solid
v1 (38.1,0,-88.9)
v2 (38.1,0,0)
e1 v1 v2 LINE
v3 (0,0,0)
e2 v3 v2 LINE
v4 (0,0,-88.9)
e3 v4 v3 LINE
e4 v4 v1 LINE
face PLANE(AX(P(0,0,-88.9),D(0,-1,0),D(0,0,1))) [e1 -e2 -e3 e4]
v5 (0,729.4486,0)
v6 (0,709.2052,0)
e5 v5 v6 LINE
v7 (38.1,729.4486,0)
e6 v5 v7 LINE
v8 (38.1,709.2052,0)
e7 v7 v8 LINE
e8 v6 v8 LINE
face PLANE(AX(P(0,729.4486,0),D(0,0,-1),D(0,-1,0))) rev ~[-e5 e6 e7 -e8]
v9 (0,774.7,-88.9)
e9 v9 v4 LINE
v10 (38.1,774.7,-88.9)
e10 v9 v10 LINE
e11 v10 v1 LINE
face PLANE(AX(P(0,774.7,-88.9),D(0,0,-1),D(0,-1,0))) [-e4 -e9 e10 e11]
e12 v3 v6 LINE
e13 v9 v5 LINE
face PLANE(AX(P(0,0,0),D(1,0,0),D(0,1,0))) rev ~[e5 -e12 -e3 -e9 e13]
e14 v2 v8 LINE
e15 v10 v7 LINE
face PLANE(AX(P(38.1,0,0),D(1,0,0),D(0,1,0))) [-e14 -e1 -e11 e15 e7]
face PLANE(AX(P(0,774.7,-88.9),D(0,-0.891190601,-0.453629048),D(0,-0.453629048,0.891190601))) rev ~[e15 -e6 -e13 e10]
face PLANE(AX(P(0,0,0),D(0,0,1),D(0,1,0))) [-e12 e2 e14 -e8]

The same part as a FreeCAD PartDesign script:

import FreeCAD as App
import Part
import Sketcher

V = App.Vector
Q = App.Units.Quantity

doc = App.newDocument("Part")
params = doc.addObject("Spreadsheet::Sheet", "Params")
for row, (alias, value) in enumerate([
    ("sketch1_width", "30.5 in"),
    ("sketch1_height", "3.5 in"),
    ("pad1_length", "1.5 in"),
], start=1):
    params.set(f"A{row}", alias)
    params.set(f"B{row}", "=" + value)
    params.setAlias(f"B{row}", alias)

body = doc.addObject("PartDesign::Body", "Body")

sketch1 = body.newObject("Sketcher::SketchObject", "Sketch")
sketch1.AttachmentSupport = (doc.getObject("YZ_Plane"), [""])
sketch1.MapMode = "FlatFace"
sketch1.addGeometry([
    Part.LineSegment(V(729.4486, 0, 0), V(0, 0, 0)),
    Part.LineSegment(V(0, 0, 0), V(0, -88.9, 0)),
    Part.LineSegment(V(0, -88.9, 0), V(774.7, -88.9, 0)),
    Part.LineSegment(V(774.7, -88.9, 0), V(729.4486, 0, 0)),
], False)
sketch1.addConstraint([
    Sketcher.Constraint("Coincident", 0, 2, 1, 1),
    Sketcher.Constraint("Coincident", 1, 2, 2, 1),
    Sketcher.Constraint("Coincident", 2, 2, 3, 1),
    Sketcher.Constraint("Coincident", 3, 2, 0, 1),
    Sketcher.Constraint("Horizontal", 0),
    Sketcher.Constraint("Vertical", 1),
    Sketcher.Constraint("Horizontal", 2),
    Sketcher.Constraint("Coincident", 0, 2, -1, 1),
    Sketcher.Constraint("DistanceX", 2, 1, 2, 2, Q("30.5 in")),
    Sketcher.Constraint("DistanceY", 1, 2, 1, 1, Q("3.5 in")),
    Sketcher.Constraint("DistanceX", 0, 2, 0, 1, Q("729.4486 mm")),
])
sketch1.setExpression("Constraints[8]", "Params.sketch1_width")
sketch1.setExpression("Constraints[9]", "Params.sketch1_height")
pad1 = body.newObject("PartDesign::Pad", "Pad")
pad1.Profile = sketch1
pad1.setExpression("Length", "Params.pad1_length")

doc.recompute()
